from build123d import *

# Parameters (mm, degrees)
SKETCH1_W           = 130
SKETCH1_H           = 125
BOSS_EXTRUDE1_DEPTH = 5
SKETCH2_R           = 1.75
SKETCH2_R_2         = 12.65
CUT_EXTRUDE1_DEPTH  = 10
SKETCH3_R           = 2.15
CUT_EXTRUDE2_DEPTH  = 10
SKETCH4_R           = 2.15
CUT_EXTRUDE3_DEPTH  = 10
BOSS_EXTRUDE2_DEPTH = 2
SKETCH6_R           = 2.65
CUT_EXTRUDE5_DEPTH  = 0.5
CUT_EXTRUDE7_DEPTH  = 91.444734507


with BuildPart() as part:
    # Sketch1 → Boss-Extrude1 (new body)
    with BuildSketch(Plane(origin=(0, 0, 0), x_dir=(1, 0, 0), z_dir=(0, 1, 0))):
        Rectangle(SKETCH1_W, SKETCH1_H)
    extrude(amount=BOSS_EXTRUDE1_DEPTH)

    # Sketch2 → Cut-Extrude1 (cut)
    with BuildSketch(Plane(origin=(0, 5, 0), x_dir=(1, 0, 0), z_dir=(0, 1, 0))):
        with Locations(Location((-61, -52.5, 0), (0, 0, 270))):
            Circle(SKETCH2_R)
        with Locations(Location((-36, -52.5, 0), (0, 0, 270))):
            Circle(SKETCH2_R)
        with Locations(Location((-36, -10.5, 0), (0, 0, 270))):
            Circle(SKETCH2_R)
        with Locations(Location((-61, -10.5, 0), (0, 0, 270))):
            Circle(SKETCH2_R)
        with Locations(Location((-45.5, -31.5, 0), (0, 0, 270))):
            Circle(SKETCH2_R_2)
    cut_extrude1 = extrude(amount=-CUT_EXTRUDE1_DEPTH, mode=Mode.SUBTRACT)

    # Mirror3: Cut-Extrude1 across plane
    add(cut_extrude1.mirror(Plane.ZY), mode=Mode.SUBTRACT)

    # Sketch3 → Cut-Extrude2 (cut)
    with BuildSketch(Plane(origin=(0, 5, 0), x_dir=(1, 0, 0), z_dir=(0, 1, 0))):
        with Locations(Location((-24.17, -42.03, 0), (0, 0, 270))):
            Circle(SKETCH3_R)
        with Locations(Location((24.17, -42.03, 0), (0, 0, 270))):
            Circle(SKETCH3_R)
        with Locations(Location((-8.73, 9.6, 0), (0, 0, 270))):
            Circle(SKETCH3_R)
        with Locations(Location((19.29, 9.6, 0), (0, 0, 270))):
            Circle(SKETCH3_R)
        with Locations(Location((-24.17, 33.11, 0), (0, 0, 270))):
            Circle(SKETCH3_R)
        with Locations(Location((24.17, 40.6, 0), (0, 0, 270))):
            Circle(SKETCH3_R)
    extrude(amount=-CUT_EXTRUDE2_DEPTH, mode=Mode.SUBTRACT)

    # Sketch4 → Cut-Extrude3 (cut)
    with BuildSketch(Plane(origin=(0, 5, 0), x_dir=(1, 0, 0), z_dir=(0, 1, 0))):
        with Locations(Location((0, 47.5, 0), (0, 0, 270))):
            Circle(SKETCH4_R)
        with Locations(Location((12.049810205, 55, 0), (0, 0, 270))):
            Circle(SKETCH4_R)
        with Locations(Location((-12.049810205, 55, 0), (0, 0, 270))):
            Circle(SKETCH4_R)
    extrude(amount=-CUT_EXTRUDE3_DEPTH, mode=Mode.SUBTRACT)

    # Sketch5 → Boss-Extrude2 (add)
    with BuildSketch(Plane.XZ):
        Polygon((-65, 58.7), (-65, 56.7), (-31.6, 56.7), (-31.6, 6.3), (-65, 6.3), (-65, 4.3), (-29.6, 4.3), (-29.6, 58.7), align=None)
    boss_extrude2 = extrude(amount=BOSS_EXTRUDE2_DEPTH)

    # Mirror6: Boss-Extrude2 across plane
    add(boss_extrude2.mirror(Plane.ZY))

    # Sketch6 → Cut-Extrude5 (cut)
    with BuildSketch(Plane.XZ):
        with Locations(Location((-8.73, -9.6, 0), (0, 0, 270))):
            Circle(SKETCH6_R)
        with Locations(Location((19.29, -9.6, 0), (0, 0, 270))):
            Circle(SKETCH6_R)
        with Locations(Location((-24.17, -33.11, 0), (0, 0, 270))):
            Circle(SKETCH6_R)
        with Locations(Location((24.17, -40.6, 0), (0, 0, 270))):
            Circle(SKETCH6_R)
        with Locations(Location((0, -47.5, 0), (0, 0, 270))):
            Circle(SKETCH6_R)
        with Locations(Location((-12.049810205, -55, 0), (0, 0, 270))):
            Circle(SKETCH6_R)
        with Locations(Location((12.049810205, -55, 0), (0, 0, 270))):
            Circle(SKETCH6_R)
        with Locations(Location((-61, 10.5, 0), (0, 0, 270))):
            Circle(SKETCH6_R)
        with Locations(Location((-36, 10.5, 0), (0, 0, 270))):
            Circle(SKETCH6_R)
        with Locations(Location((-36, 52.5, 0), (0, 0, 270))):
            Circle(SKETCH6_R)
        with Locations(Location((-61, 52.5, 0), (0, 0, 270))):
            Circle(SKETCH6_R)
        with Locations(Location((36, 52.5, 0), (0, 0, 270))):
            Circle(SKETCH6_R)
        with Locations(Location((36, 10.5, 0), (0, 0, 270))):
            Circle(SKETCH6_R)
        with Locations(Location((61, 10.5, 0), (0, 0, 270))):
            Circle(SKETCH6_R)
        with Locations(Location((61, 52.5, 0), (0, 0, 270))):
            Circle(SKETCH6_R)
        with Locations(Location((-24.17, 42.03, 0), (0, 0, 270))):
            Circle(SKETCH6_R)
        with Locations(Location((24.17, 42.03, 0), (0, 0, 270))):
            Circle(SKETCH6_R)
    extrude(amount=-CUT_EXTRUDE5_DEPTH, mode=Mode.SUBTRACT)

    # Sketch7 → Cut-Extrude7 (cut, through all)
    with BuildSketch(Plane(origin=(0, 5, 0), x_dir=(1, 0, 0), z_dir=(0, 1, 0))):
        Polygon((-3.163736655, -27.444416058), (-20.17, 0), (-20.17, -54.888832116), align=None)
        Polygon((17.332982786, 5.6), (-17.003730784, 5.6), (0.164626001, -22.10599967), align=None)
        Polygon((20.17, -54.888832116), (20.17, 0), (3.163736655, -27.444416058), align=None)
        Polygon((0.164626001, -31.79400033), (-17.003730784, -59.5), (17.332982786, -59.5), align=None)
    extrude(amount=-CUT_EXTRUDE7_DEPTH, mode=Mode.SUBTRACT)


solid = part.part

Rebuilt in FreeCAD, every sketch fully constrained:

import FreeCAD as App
import Part
import Sketcher

V = App.Vector


def add_polygon(sketch, points):
    """Adds a closed chain of lines whose ends are joined by coincident constraints."""
    first, n = sketch.GeometryCount, len(points)
    for a, b in zip(points, points[1:] + points[:1]):
        sketch.addGeometry(Part.LineSegment(App.Vector(*a, 0), App.Vector(*b, 0)), False)
    for i in range(n):
        sketch.addConstraint(Sketcher.Constraint("Coincident", first + i, 2, first + (i + 1) % n, 1))

doc = App.newDocument("Part")
body = doc.addObject("PartDesign::Body", "Body")

# Sketch on XZ plane
sketch1 = body.newObject("Sketcher::SketchObject", "Sketch")
sketch1.AttachmentSupport = (doc.getObject("XZ_Plane"), [""])
sketch1.MapMode = "FlatFace"
add_polygon(sketch1, [(-65, -62.5), (-65, 62.5), (65, 62.5), (65, -62.5)])  # lines 0-3
sketch1.addConstraint([
    Sketcher.Constraint("Vertical", 0),
    Sketcher.Constraint("Horizontal", 1),
    Sketcher.Constraint("Vertical", 2),
    Sketcher.Constraint("Horizontal", 3),
    Sketcher.Constraint("Symmetric", 0, 2, 2, 2, -1, 1),
    Sketcher.Constraint("DistanceX", 1, 1, 1, 2, 130.0),
    Sketcher.Constraint("DistanceY", 0, 1, 0, 2, 125.0),
])
pad1 = body.newObject("PartDesign::Pad", "Pad")
pad1.Profile = sketch1
pad1.Length = 5
pad1.Reversed = True

# Sketch on XZ plane
sketch2 = body.newObject("Sketcher::SketchObject", "Sketch001")
sketch2.AttachmentSupport = (doc.getObject("XZ_Plane"), [""])
sketch2.MapMode = "FlatFace"
sketch2.AttachmentOffset = App.Placement(V(0, 0, -5), App.Rotation())
sketch2.addGeometry([
    Part.Circle(V(-61, 52.5, 0), V(0, 0, 1), 1.75),  # 0
    Part.Circle(V(-36, 52.5, 0), V(0, 0, 1), 1.75),  # 1
    Part.Circle(V(-36, 10.5, 0), V(0, 0, 1), 1.75),  # 2
    Part.Circle(V(-61, 10.5, 0), V(0, 0, 1), 1.75),  # 3
    Part.Circle(V(-45.5, 31.5, 0), V(0, 0, 1), 12.65),  # 4
], False)
sketch2.addConstraint([
    Sketcher.Constraint("Equal", 0, 1),
    Sketcher.Constraint("Equal", 1, 2),
    Sketcher.Constraint("Equal", 2, 3),
    Sketcher.Constraint("Horizontal", 0, 3, 1, 3),
    Sketcher.Constraint("Horizontal", 2, 3, 3, 3),
    Sketcher.Constraint("Vertical", 1, 3, 2, 3),
    Sketcher.Constraint("Vertical", 0, 3, 3, 3),
    Sketcher.Constraint("Diameter", 0, 3.5),
    Sketcher.Constraint("Diameter", 4, 25.3),
    Sketcher.Constraint("DistanceX", 0, 3, -1, 1, 61.0),
    Sketcher.Constraint("DistanceX", 1, 3, -1, 1, 36.0),
    Sketcher.Constraint("DistanceY", 2, 3, 1, 3, 42.0),
    Sketcher.Constraint("DistanceY", 4, 3, 1, 3, 21.0),
    Sketcher.Constraint("DistanceY", -1, 1, 0, 3, 52.5),
    Sketcher.Constraint("DistanceX", 4, 3, -1, 1, 45.5),
])
pocket1 = body.newObject("PartDesign::Pocket", "Pocket")
pocket1.Profile = sketch2
pocket1.Length = 10
pocket1.Reversed = True
doc.recompute()

mirrored = body.newObject("PartDesign::Mirrored", "Mirrored")
mirrored.Originals = [pocket1]
mirrored.MirrorPlane = (doc.getObject("YZ_Plane"), [""])
body.Tip = mirrored

# Sketch on XZ plane
sketch3 = body.newObject("Sketcher::SketchObject", "Sketch002")
sketch3.AttachmentSupport = (doc.getObject("XZ_Plane"), [""])
sketch3.MapMode = "FlatFace"
sketch3.AttachmentOffset = App.Placement(V(0, 0, -5), App.Rotation())
sketch3.addGeometry([
    Part.Circle(V(-24.17, 42.03, 0), V(0, 0, 1), 2.15),  # 0
    Part.Circle(V(24.17, 42.03, 0), V(0, 0, 1), 2.15),  # 1
    Part.Circle(V(-8.73, -9.6, 0), V(0, 0, 1), 2.15),  # 2
    Part.Circle(V(19.29, -9.6, 0), V(0, 0, 1), 2.15),  # 3
    Part.Circle(V(-24.17, -33.11, 0), V(0, 0, 1), 2.15),  # 4
    Part.Circle(V(24.17, -40.6, 0), V(0, 0, 1), 2.15),  # 5
], False)
sketch3.addConstraint([
    Sketcher.Constraint("Equal", 0, 1),
    Sketcher.Constraint("Equal", 1, 2),
    Sketcher.Constraint("Equal", 2, 3),
    Sketcher.Constraint("Equal", 3, 4),
    Sketcher.Constraint("Equal", 4, 5),
    Sketcher.Constraint("Symmetric", 0, 3, 1, 3, -2),
    Sketcher.Constraint("Horizontal", 2, 3, 3, 3),
    Sketcher.Constraint("Vertical", 0, 3, 4, 3),
    Sketcher.Constraint("Vertical", 1, 3, 5, 3),
    Sketcher.Constraint("Diameter", 0, 4.3),
    Sketcher.Constraint("DistanceY", 5, 3, 3, 3, 31.0),
    Sketcher.Constraint("DistanceY", 2, 3, -1, 1, 9.6),
    Sketcher.Constraint("DistanceX", 2, 3, 1, 3, 32.9),
    Sketcher.Constraint("DistanceX", 0, 3, -1, 1, 24.17),
    Sketcher.Constraint("DistanceY", -1, 1, 0, 3, 42.03),
    Sketcher.Constraint("DistanceX", -1, 1, 3, 3, 19.29),
    Sketcher.Constraint("DistanceY", 4, 3, -1, 1, 33.11),
])
pocket2 = body.newObject("PartDesign::Pocket", "Pocket001")
pocket2.Profile = sketch3
pocket2.Length = 10
pocket2.Reversed = True

# Sketch on XZ plane
sketch4 = body.newObject("Sketcher::SketchObject", "Sketch003")
sketch4.AttachmentSupport = (doc.getObject("XZ_Plane"), [""])
sketch4.MapMode = "FlatFace"
sketch4.AttachmentOffset = App.Placement(V(0, 0, -5), App.Rotation())
sketch4.addGeometry([
    Part.Circle(V(0, -47.5, 0), V(0, 0, 1), 2.15),
    Part.Circle(V(12.04981, -55, 0), V(0, 0, 1), 2.15),
    Part.Circle(V(-12.04981, -55, 0), V(0, 0, 1), 2.15),
], False)
sketch4.addConstraint([
    Sketcher.Constraint("Equal", 0, 1),
    Sketcher.Constraint("Equal", 1, 2),
    Sketcher.Constraint("Symmetric", 1, 3, 2, 3, -2),
    Sketcher.Constraint("PointOnObject", 0, 3, -2),
    Sketcher.Constraint("Diameter", 0, 4.3),
    Sketcher.Constraint("DistanceY", 1, 3, -1, 1, 55.0),
    Sketcher.Constraint("DistanceY", 0, 3, -1, 1, 47.5),
    Sketcher.Constraint("DistanceX", -1, 1, 1, 3, 12.04981),
])
pocket3 = body.newObject("PartDesign::Pocket", "Pocket002")
pocket3.Profile = sketch4
pocket3.Length = 10
pocket3.Reversed = True

# Sketch on XZ plane
sketch5 = body.newObject("Sketcher::SketchObject", "Sketch004")
sketch5.AttachmentSupport = (doc.getObject("XZ_Plane"), [""])
sketch5.MapMode = "FlatFace"
add_polygon(sketch5, [(-65, 58.7), (-65, 56.7), (-31.6, 56.7), (-31.6, 6.3), (-65, 6.3), (-65, 4.3), (-29.6, 4.3), (-29.6, 58.7)])  # lines 0-7
sketch5.addConstraint([
    Sketcher.Constraint("Vertical", 0),
    Sketcher.Constraint("Horizontal", 1),
    Sketcher.Constraint("Vertical", 2),
    Sketcher.Constraint("Horizontal", 3),
    Sketcher.Constraint("Vertical", 4),
    Sketcher.Constraint("Horizontal", 5),
    Sketcher.Constraint("Vertical", 6),
    Sketcher.Constraint("Horizontal", 7),
    Sketcher.Constraint("Vertical", 0, 2, 3, 2),
    Sketcher.Constraint("Equal", 0, 4),
    Sketcher.Constraint("DistanceY", 0, 2, 0, 1, 2.0),
    Sketcher.Constraint("DistanceX", 1, 1, 1, 2, 33.4),
    Sketcher.Constraint("DistanceX", 5, 1, 5, 2, 35.4),
    Sketcher.Constraint("DistanceY", 2, 2, 2, 1, 50.4),
    Sketcher.Constraint("DistanceX", 0, 2, -1, 1, 65.0),
    Sketcher.Constraint("DistanceY", -1, 1, 0, 2, 56.7),
])
pad2 = body.newObject("PartDesign::Pad", "Pad001")
pad2.Profile = sketch5
pad2.Length = 2
doc.recompute()

mirrored2 = body.newObject("PartDesign::Mirrored", "Mirrored001")
mirrored2.Originals = [pad2]
mirrored2.MirrorPlane = (doc.getObject("YZ_Plane"), [""])
body.Tip = mirrored2

# Sketch on XZ plane
sketch6 = body.newObject("Sketcher::SketchObject", "Sketch005")
sketch6.AttachmentSupport = (doc.getObject("XZ_Plane"), [""])
sketch6.MapMode = "FlatFace"
sketch6.addGeometry([
    Part.Circle(V(-8.73, -9.6, 0), V(0, 0, 1), 2.65),  # 0
    Part.Circle(V(19.29, -9.6, 0), V(0, 0, 1), 2.65),  # 1
    Part.Circle(V(-24.17, -33.11, 0), V(0, 0, 1), 2.65),  # 2
    Part.Circle(V(24.17, -40.6, 0), V(0, 0, 1), 2.65),  # 3
    Part.Circle(V(0, -47.5, 0), V(0, 0, 1), 2.65),  # 4
    Part.Circle(V(-12.04981, -55, 0), V(0, 0, 1), 2.65),  # 5
    Part.Circle(V(12.04981, -55, 0), V(0, 0, 1), 2.65),  # 6
    Part.Circle(V(-61, 10.5, 0), V(0, 0, 1), 2.65),  # 7
    Part.Circle(V(-36, 10.5, 0), V(0, 0, 1), 2.65),  # 8
    Part.Circle(V(-36, 52.5, 0), V(0, 0, 1), 2.65),  # 9
    Part.Circle(V(-61, 52.5, 0), V(0, 0, 1), 2.65),  # 10
    Part.Circle(V(36, 52.5, 0), V(0, 0, 1), 2.65),  # 11
    Part.Circle(V(36, 10.5, 0), V(0, 0, 1), 2.65),  # 12
    Part.Circle(V(61, 10.5, 0), V(0, 0, 1), 2.65),  # 13
    Part.Circle(V(61, 52.5, 0), V(0, 0, 1), 2.65),  # 14
    Part.Circle(V(-24.17, 42.03, 0), V(0, 0, 1), 2.65),  # 15
    Part.Circle(V(24.17, 42.03, 0), V(0, 0, 1), 2.65),  # 16
], False)
sketch6.addConstraint([
    Sketcher.Constraint("Equal", 0, 1),
    Sketcher.Constraint("Equal", 1, 2),
    Sketcher.Constraint("Equal", 2, 3),
    Sketcher.Constraint("Equal", 3, 4),
    Sketcher.Constraint("Equal", 4, 5),
    Sketcher.Constraint("Equal", 5, 6),
    Sketcher.Constraint("Equal", 6, 7),
    Sketcher.Constraint("Equal", 7, 8),
    Sketcher.Constraint("Equal", 8, 9),
    Sketcher.Constraint("Equal", 9, 10),
    Sketcher.Constraint("Equal", 10, 11),
    Sketcher.Constraint("Equal", 11, 12),
    Sketcher.Constraint("Equal", 12, 13),
    Sketcher.Constraint("Equal", 13, 14),
    Sketcher.Constraint("Equal", 14, 15),
    Sketcher.Constraint("Equal", 15, 16),
    Sketcher.Constraint("Symmetric", 5, 3, 6, 3, -2),
    Sketcher.Constraint("Symmetric", 9, 3, 11, 3, -2),
    Sketcher.Constraint("Symmetric", 8, 3, 12, 3, -2),
    Sketcher.Constraint("Symmetric", 7, 3, 13, 3, -2),
    Sketcher.Constraint("Symmetric", 10, 3, 14, 3, -2),
    Sketcher.Constraint("Symmetric", 15, 3, 16, 3, -2),
    Sketcher.Constraint("PointOnObject", 4, 3, -2),
    Sketcher.Constraint("Horizontal", 0, 3, 1, 3),
    Sketcher.Constraint("Horizontal", 7, 3, 8, 3),
    Sketcher.Constraint("Horizontal", 9, 3, 10, 3),
    Sketcher.Constraint("Vertical", 8, 3, 9, 3),
    Sketcher.Constraint("Vertical", 7, 3, 10, 3),
    Sketcher.Constraint("Vertical", 2, 3, 15, 3),
    Sketcher.Constraint("Vertical", 3, 3, 16, 3),
    Sketcher.Constraint("Diameter", 0, 5.3),
    Sketcher.Constraint("DistanceY", 5, 3, -1, 1, 55.0),
    Sketcher.Constraint("DistanceX", 7, 3, -1, 1, 61.0),
    Sketcher.Constraint("DistanceX", 8, 3, -1, 1, 36.0),
    Sketcher.Constraint("DistanceY", 3, 3, 1, 3, 31.0),
    Sketcher.Constraint("DistanceY", 4, 3, 7, 3, 58.0),
    Sketcher.Constraint("DistanceY", 8, 3, 9, 3, 42.0),
    Sketcher.Constraint("DistanceY", 0, 3, -1, 1, 9.6),
    Sketcher.Constraint("DistanceY", 4, 3, -1, 1, 47.5),
    Sketcher.Constraint("DistanceX", 0, 3, 3, 3, 32.9),
    Sketcher.Constraint("DistanceX", 0, 3, -1, 1, 8.73),
    Sketcher.Constraint("DistanceX", -1, 1, 1, 3, 19.29),
    Sketcher.Constraint("DistanceY", 2, 3, -1, 1, 33.11),
    Sketcher.Constraint("DistanceY", -1, 1, 15, 3, 42.03),
    Sketcher.Constraint("DistanceX", 5, 3, -1, 1, 12.04981),
])
pocket4 = body.newObject("PartDesign::Pocket", "Pocket003")
pocket4.Profile = sketch6
pocket4.Length = 0.5

# Sketch on XZ plane
sketch7 = body.newObject("Sketcher::SketchObject", "Sketch006")
sketch7.AttachmentSupport = (doc.getObject("XZ_Plane"), [""])
sketch7.MapMode = "FlatFace"
sketch7.AttachmentOffset = App.Placement(V(0, 0, -5), App.Rotation())
add_polygon(sketch7, [(-3.163737, 27.444416), (-20.17, 0), (-20.17, 54.888832)])  # lines 0-2
add_polygon(sketch7, [(17.332983, -5.6), (-17.003731, -5.6), (0.164626, 22.106)])  # lines 3-5
add_polygon(sketch7, [(20.17, 54.888832), (20.17, 0), (3.163737, 27.444416)])  # lines 6-8
add_polygon(sketch7, [(0.164626, 31.794), (-17.003731, 59.5), (17.332983, 59.5)])  # lines 9-11
sketch7.addConstraint([
    Sketcher.Constraint("Vertical", 1),
    Sketcher.Constraint("Horizontal", 3),
    Sketcher.Constraint("Vertical", 6),
    Sketcher.Constraint("Horizontal", 10),
    Sketcher.Constraint("Symmetric", 0, 2, 6, 2, -1, 1),
    Sketcher.Constraint("Symmetric", 2, 2, 7, 2, -2),
    Sketcher.Constraint("PointOnObject", 0, 2, -1),
    Sketcher.Constraint("Parallel", 0, 4),
    Sketcher.Constraint("Parallel", 2, 5),
    Sketcher.Constraint("Parallel", 5, 7),
    Sketcher.Constraint("Parallel", 4, 8),
    Sketcher.Constraint("Parallel", 7, 9),
    Sketcher.Constraint("Parallel", 8, 11),
    Sketcher.Constraint("Vertical", 3, 2, 9, 2),
    Sketcher.Constraint("Vertical", 5, 2, 10, 2),
    Sketcher.Constraint("DistanceY", 3, 2, -1, 1, 5.6),
    Sketcher.Constraint("DistanceY", -1, 1, 9, 2, 59.5),
    Sketcher.Constraint("DistanceX", 0, 2, -1, 1, 20.17),
    Sketcher.Constraint("DistanceY", -1, 1, 4, 2, 22.106),
    Sketcher.Constraint("Distance", 0, 32.286359),
    Sketcher.Constraint("DistanceX", 3, 2, 3, 1, 34.336714),
    Sketcher.Constraint("DistanceX", 3, 2, -1, 1, 17.003731),
])
pocket5 = body.newObject("PartDesign::Pocket", "Pocket004")
pocket5.Profile = sketch7
pocket5.Type = "ThroughAll"
pocket5.Reversed = True

doc.recompute()
